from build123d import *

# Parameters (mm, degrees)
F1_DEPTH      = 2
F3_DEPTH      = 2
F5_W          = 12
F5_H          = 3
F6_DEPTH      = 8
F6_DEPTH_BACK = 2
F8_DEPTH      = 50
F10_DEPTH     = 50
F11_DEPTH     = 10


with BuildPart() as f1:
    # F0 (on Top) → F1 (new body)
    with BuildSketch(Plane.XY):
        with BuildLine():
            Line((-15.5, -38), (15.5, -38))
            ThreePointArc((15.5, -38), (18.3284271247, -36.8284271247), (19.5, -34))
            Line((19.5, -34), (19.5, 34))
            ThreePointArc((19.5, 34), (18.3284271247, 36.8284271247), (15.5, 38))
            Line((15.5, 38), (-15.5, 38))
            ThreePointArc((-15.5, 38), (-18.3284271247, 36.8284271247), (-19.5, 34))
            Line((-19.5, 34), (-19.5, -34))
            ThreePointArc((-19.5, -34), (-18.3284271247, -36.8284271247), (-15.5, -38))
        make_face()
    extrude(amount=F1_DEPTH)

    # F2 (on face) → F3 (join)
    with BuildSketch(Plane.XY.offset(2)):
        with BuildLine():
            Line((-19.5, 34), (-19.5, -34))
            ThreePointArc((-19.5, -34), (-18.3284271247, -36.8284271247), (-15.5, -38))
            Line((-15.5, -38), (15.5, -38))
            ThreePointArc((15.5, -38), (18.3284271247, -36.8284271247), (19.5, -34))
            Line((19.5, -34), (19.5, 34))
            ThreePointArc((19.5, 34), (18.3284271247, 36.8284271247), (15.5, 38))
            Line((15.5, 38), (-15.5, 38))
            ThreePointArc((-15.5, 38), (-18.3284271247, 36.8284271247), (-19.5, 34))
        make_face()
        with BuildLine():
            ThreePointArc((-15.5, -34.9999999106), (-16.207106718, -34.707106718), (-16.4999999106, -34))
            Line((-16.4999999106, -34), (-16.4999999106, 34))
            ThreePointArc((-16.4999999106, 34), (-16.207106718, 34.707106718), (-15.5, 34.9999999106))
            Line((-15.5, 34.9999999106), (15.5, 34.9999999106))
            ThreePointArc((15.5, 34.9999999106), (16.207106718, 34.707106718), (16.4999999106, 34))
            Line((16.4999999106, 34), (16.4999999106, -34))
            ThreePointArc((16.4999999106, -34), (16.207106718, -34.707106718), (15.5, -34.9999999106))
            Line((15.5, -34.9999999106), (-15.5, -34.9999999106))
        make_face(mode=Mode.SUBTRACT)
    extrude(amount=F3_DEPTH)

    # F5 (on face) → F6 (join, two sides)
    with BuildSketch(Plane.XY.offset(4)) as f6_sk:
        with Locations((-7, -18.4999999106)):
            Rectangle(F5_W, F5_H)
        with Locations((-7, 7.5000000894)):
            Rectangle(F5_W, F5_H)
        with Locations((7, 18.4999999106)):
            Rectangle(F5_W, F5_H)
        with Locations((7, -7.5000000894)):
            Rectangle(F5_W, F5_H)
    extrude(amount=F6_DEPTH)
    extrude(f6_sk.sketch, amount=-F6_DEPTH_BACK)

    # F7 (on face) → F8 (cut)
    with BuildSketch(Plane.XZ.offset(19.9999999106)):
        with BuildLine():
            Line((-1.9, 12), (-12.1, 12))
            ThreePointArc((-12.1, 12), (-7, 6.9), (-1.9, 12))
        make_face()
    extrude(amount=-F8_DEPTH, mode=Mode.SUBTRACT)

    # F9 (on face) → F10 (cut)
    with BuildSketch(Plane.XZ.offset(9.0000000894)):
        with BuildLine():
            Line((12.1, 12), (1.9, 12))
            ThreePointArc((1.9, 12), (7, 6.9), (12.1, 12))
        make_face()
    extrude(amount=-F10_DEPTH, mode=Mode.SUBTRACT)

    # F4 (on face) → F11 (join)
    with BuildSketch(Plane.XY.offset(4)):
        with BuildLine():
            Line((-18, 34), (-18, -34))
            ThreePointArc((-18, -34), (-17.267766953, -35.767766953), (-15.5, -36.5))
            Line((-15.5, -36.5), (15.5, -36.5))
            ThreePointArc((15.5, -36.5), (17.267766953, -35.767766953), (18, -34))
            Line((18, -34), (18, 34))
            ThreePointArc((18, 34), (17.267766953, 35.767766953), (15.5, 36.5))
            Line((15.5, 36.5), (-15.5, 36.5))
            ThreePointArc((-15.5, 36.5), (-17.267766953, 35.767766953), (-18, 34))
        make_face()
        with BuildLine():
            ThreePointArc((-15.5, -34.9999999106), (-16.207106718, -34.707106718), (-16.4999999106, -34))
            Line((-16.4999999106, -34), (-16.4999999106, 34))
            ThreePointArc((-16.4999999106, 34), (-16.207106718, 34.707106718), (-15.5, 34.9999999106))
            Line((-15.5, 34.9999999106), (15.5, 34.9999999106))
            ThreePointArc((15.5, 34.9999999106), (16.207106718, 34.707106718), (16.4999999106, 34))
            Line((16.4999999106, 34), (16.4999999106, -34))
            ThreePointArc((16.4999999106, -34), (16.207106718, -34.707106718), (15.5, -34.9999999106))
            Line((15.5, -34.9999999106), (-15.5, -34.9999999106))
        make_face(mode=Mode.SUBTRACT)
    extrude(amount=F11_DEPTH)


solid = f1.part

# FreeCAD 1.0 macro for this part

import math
import FreeCAD as App
import Part
import Sketcher
from FreeCAD import Vector
Q = App.Units.Quantity

doc = App.newDocument("Part")
body = doc.addObject("PartDesign::Body", "Body")

# Sketch on XY plane
sketch1 = body.newObject("Sketcher::SketchObject", "Sketch")
sketch1.AttachmentSupport = (doc.getObject("XY_Plane"), [""])
sketch1.MapMode = "FlatFace"
sketch1.addGeometry([
    Part.LineSegment(Vector(-15.5, -38, 0), Vector(15.5, -38, 0)),  # 0
    Part.ArcOfCircle(Part.Circle(Vector(15.5, -34, 0), Vector(0, 0, 1), 4), math.radians(-90), math.radians(0)),  # 1
    Part.LineSegment(Vector(19.5, -34, 0), Vector(19.5, 34, 0)),  # 2
    Part.ArcOfCircle(Part.Circle(Vector(15.5, 34, 0), Vector(0, 0, 1), 4), math.radians(0), math.radians(90)),  # 3
    Part.LineSegment(Vector(15.5, 38, 0), Vector(-15.5, 38, 0)),  # 4
    Part.ArcOfCircle(Part.Circle(Vector(-15.5, 34, 0), Vector(0, 0, 1), 4), math.radians(90), math.radians(180)),  # 5
    Part.LineSegment(Vector(-19.5, 34, 0), Vector(-19.5, -34, 0)),  # 6
    Part.ArcOfCircle(Part.Circle(Vector(-15.5, -34, 0), Vector(0, 0, 1), 4), math.radians(180), math.radians(270)),  # 7
], False)
sketch1.addConstraint([
    Sketcher.Constraint("Tangent", 0, 2, 1, 1),
    Sketcher.Constraint("Tangent", 1, 2, 2, 1),
    Sketcher.Constraint("Tangent", 2, 2, 3, 1),
    Sketcher.Constraint("Tangent", 3, 2, 4, 1),
    Sketcher.Constraint("Tangent", 4, 2, 5, 1),
    Sketcher.Constraint("Tangent", 5, 2, 6, 1),
    Sketcher.Constraint("Tangent", 6, 2, 7, 1),
    Sketcher.Constraint("Tangent", 7, 2, 0, 1),
    Sketcher.Constraint("Horizontal", 0),
    Sketcher.Constraint("Vertical", 2),
    Sketcher.Constraint("Horizontal", 4),
    Sketcher.Constraint("Vertical", 6),
    Sketcher.Constraint("Equal", 1, 3),
    Sketcher.Constraint("Equal", 3, 5),
    Sketcher.Constraint("Equal", 5, 7),
    Sketcher.Constraint("Symmetric", 1, 3, 5, 3, -1, 1),
    Sketcher.Constraint("Radius", 1, Q("4 mm")),
    Sketcher.Constraint("DistanceX", 0, 1, 0, 2, Q("31 mm")),
    Sketcher.Constraint("DistanceY", 2, 1, 2, 2, Q("68 mm")),
])
pad1 = body.newObject("PartDesign::Pad", "Pad")
pad1.Profile = sketch1
pad1.Length = 2

# Sketch on XY plane
sketch2 = body.newObject("Sketcher::SketchObject", "Sketch001")
sketch2.AttachmentSupport = (doc.getObject("XY_Plane"), [""])
sketch2.MapMode = "FlatFace"
sketch2.AttachmentOffset = App.Placement(Vector(0, 0, 2), App.Rotation())
sketch2.addGeometry([
    Part.LineSegment(Vector(-19.5, 34, 0), Vector(-19.5, -34, 0)),  # 0
    Part.ArcOfCircle(Part.Circle(Vector(-15.5, -34, 0), Vector(0, 0, 1), 4), math.radians(180), math.radians(270)),  # 1
    Part.LineSegment(Vector(-15.5, -38, 0), Vector(15.5, -38, 0)),  # 2
    Part.ArcOfCircle(Part.Circle(Vector(15.5, -34, 0), Vector(0, 0, 1), 4), math.radians(-90), math.radians(0)),  # 3
    Part.LineSegment(Vector(19.5, -34, 0), Vector(19.5, 34, 0)),  # 4
    Part.ArcOfCircle(Part.Circle(Vector(15.5, 34, 0), Vector(0, 0, 1), 4), math.radians(0), math.radians(90)),  # 5
    Part.LineSegment(Vector(15.5, 38, 0), Vector(-15.5, 38, 0)),  # 6
    Part.ArcOfCircle(Part.Circle(Vector(-15.5, 34, 0), Vector(0, 0, 1), 4), math.radians(90), math.radians(180)),  # 7
    Part.LineSegment(Vector(15.5, -35, 0), Vector(-15.5, -35, 0)),  # 8
    Part.ArcOfCircle(Part.Circle(Vector(-15.5, -34, 0), Vector(0, 0, 1), 1), math.radians(180), math.radians(270)),  # 9
    Part.LineSegment(Vector(-16.5, -34, 0), Vector(-16.5, 34, 0)),  # 10
    Part.ArcOfCircle(Part.Circle(Vector(-15.5, 34, 0), Vector(0, 0, 1), 1), math.radians(90), math.radians(180)),  # 11
    Part.LineSegment(Vector(-15.5, 35, 0), Vector(15.5, 35, 0)),  # 12
    Part.ArcOfCircle(Part.Circle(Vector(15.5, 34, 0), Vector(0, 0, 1), 1), math.radians(0), math.radians(90)),  # 13
    Part.LineSegment(Vector(16.5, 34, 0), Vector(16.5, -34, 0)),  # 14
    Part.ArcOfCircle(Part.Circle(Vector(15.5, -34, 0), Vector(0, 0, 1), 1), math.radians(-90), math.radians(0)),  # 15
], False)
sketch2.addConstraint([
    Sketcher.Constraint("Tangent", 0, 2, 1, 1),
    Sketcher.Constraint("Tangent", 1, 2, 2, 1),
    Sketcher.Constraint("Tangent", 2, 2, 3, 1),
    Sketcher.Constraint("Tangent", 3, 2, 4, 1),
    Sketcher.Constraint("Tangent", 4, 2, 5, 1),
    Sketcher.Constraint("Tangent", 5, 2, 6, 1),
    Sketcher.Constraint("Tangent", 6, 2, 7, 1),
    Sketcher.Constraint("Tangent", 7, 2, 0, 1),
    Sketcher.Constraint("Tangent", 8, 2, 9, 2),
    Sketcher.Constraint("Tangent", 9, 1, 10, 1),
    Sketcher.Constraint("Tangent", 10, 2, 11, 2),
    Sketcher.Constraint("Tangent", 11, 1, 12, 1),
    Sketcher.Constraint("Tangent", 12, 2, 13, 2),
    Sketcher.Constraint("Tangent", 13, 1, 14, 1),
    Sketcher.Constraint("Tangent", 14, 2, 15, 2),
    Sketcher.Constraint("Tangent", 15, 1, 8, 1),
    Sketcher.Constraint("Vertical", 0),
    Sketcher.Constraint("Horizontal", 2),
    Sketcher.Constraint("Vertical", 4),
    Sketcher.Constraint("Horizontal", 6),
    Sketcher.Constraint("Horizontal", 8),
    Sketcher.Constraint("Vertical", 10),
    Sketcher.Constraint("Horizontal", 12),
    Sketcher.Constraint("Vertical", 14),
    Sketcher.Constraint("Coincident", 9, 3, 1, 3),
    Sketcher.Constraint("Coincident", 11, 3, 7, 3),
    Sketcher.Constraint("Coincident", 13, 3, 5, 3),
    Sketcher.Constraint("Equal", 1, 3),
    Sketcher.Constraint("Equal", 3, 5),
    Sketcher.Constraint("Equal", 5, 7),
    Sketcher.Constraint("Equal", 13, 15),
    Sketcher.Constraint("Symmetric", 1, 3, 5, 3, -1, 1),
    Sketcher.Constraint("Radius", 1, Q("4 mm")),
    Sketcher.Constraint("Radius", 9, Q("1 mm")),
    Sketcher.Constraint("DistanceX", 2, 1, 2, 2, Q("31 mm")),
    Sketcher.Constraint("DistanceY", 0, 2, 0, 1, Q("68 mm")),
])
pad2 = body.newObject("PartDesign::Pad", "Pad001")
pad2.Profile = sketch2
pad2.Length = 2

# Sketch on XY plane
sketch3 = body.newObject("Sketcher::SketchObject", "Sketch002")
sketch3.AttachmentSupport = (doc.getObject("XY_Plane"), [""])
sketch3.MapMode = "FlatFace"
sketch3.AttachmentOffset = App.Placement(Vector(0, 0, 4), App.Rotation())
sketch3.addGeometry([
    Part.LineSegment(Vector(-13, -17, 0), Vector(-13, -20, 0)),  # 0
    Part.LineSegment(Vector(-13, -20, 0), Vector(-1, -20, 0)),  # 1
    Part.LineSegment(Vector(-1, -20, 0), Vector(-1, -17, 0)),  # 2
    Part.LineSegment(Vector(-1, -17, 0), Vector(-13, -17, 0)),  # 3
    Part.LineSegment(Vector(-13, 9, 0), Vector(-13, 6, 0)),  # 4
    Part.LineSegment(Vector(-13, 6, 0), Vector(-1, 6, 0)),  # 5
    Part.LineSegment(Vector(-1, 6, 0), Vector(-1, 9, 0)),  # 6
    Part.LineSegment(Vector(-1, 9, 0), Vector(-13, 9, 0)),  # 7
    Part.LineSegment(Vector(1, 20, 0), Vector(1, 17, 0)),  # 8
    Part.LineSegment(Vector(1, 17, 0), Vector(13, 17, 0)),  # 9
    Part.LineSegment(Vector(13, 17, 0), Vector(13, 20, 0)),  # 10
    Part.LineSegment(Vector(13, 20, 0), Vector(1, 20, 0)),  # 11
    Part.LineSegment(Vector(1, -6, 0), Vector(1, -9, 0)),  # 12
    Part.LineSegment(Vector(1, -9, 0), Vector(13, -9, 0)),  # 13
    Part.LineSegment(Vector(13, -9, 0), Vector(13, -6, 0)),  # 14
    Part.LineSegment(Vector(13, -6, 0), Vector(1, -6, 0)),  # 15
], False)
sketch3.addConstraint([
    Sketcher.Constraint("Coincident", 0, 2, 1, 1),
    Sketcher.Constraint("Coincident", 1, 2, 2, 1),
    Sketcher.Constraint("Coincident", 2, 2, 3, 1),
    Sketcher.Constraint("Coincident", 3, 2, 0, 1),
    Sketcher.Constraint("Coincident", 4, 2, 5, 1),
    Sketcher.Constraint("Coincident", 5, 2, 6, 1),
    Sketcher.Constraint("Coincident", 6, 2, 7, 1),
    Sketcher.Constraint("Coincident", 7, 2, 4, 1),
    Sketcher.Constraint("Coincident", 8, 2, 9, 1),
    Sketcher.Constraint("Coincident", 9, 2, 10, 1),
    Sketcher.Constraint("Coincident", 10, 2, 11, 1),
    Sketcher.Constraint("Coincident", 11, 2, 8, 1),
    Sketcher.Constraint("Coincident", 12, 2, 13, 1),
    Sketcher.Constraint("Coincident", 13, 2, 14, 1),
    Sketcher.Constraint("Coincident", 14, 2, 15, 1),
    Sketcher.Constraint("Coincident", 15, 2, 12, 1),
    Sketcher.Constraint("Vertical", 0),
    Sketcher.Constraint("Horizontal", 1),
    Sketcher.Constraint("Vertical", 2),
    Sketcher.Constraint("Horizontal", 3),
    Sketcher.Constraint("Vertical", 4),
    Sketcher.Constraint("Horizontal", 5),
    Sketcher.Constraint("Vertical", 6),
    Sketcher.Constraint("Horizontal", 7),
    Sketcher.Constraint("Vertical", 8),
    Sketcher.Constraint("Horizontal", 9),
    Sketcher.Constraint("Vertical", 10),
    Sketcher.Constraint("Horizontal", 11),
    Sketcher.Constraint("Vertical", 12),
    Sketcher.Constraint("Horizontal", 13),
    Sketcher.Constraint("Vertical", 14),
    Sketcher.Constraint("Horizontal", 15),
    Sketcher.Constraint("Symmetric", 2, 2, 8, 2, -1, 1),
    Sketcher.Constraint("Symmetric", 0, 2, 10, 2, -1, 1),
    Sketcher.Constraint("Symmetric", 6, 2, 12, 2, -1, 1),
    Sketcher.Constraint("Symmetric", 4, 2, 14, 2, -1, 1),
    Sketcher.Constraint("Vertical", 3, 2, 4, 2),
    Sketcher.Constraint("Vertical", 2, 2, 5, 2),
    Sketcher.Constraint("Equal", 2, 4),
    Sketcher.Constraint("DistanceX", 1, 1, 1, 2, Q("12 mm")),
    Sketcher.Constraint("DistanceY", 0, 2, 0, 1, Q("3 mm")),
    Sketcher.Constraint("DistanceX", 0, 2, -1, 1, Q("13 mm")),
    Sketcher.Constraint("DistanceY", 0, 2, -1, 1, Q("20 mm")),
    Sketcher.Constraint("DistanceY", -1, 1, 4, 2, Q("6 mm")),
])
pad3 = body.newObject("PartDesign::Pad", "Pad002")
pad3.Profile = sketch3
pad3.Type = "TwoLengths"
pad3.Length = 8
pad3.Length2 = 2

# Sketch on XZ plane
sketch4 = body.newObject("Sketcher::SketchObject", "Sketch003")
sketch4.AttachmentSupport = (doc.getObject("XZ_Plane"), [""])
sketch4.MapMode = "FlatFace"
sketch4.AttachmentOffset = App.Placement(Vector(0, 0, 20), App.Rotation())
sketch4.addGeometry([
    Part.LineSegment(Vector(-1.9, 12, 0), Vector(-12.1, 12, 0)),
    Part.ArcOfCircle(Part.Circle(Vector(-7, 12, 0), Vector(0, 0, 1), 5.1), math.radians(180), math.radians(360)),
], False)
sketch4.addConstraint([
    Sketcher.Constraint("Coincident", 0, 1, 1, 2),
    Sketcher.Constraint("Coincident", 1, 1, 0, 2),
    Sketcher.Constraint("Horizontal", 0),
    Sketcher.Constraint("Horizontal", 1, 3, 0, 1),
    Sketcher.Constraint("Radius", 1, Q("5.1 mm")),
    Sketcher.Constraint("DistanceX", 1, 3, -1, 1, Q("7 mm")),
    Sketcher.Constraint("DistanceY", -1, 1, 1, 3, Q("12 mm")),
])
pocket1 = body.newObject("PartDesign::Pocket", "Pocket")
pocket1.Profile = sketch4
pocket1.Length = 50

# Sketch on XZ plane
sketch5 = body.newObject("Sketcher::SketchObject", "Sketch004")
sketch5.AttachmentSupport = (doc.getObject("XZ_Plane"), [""])
sketch5.MapMode = "FlatFace"
sketch5.AttachmentOffset = App.Placement(Vector(0, 0, 9), App.Rotation())
sketch5.addGeometry([
    Part.LineSegment(Vector(12.1, 12, 0), Vector(1.9, 12, 0)),
    Part.ArcOfCircle(Part.Circle(Vector(7, 12, 0), Vector(0, 0, 1), 5.1), math.radians(180), math.radians(360)),
], False)
sketch5.addConstraint([
    Sketcher.Constraint("Coincident", 0, 1, 1, 2),
    Sketcher.Constraint("Coincident", 1, 1, 0, 2),
    Sketcher.Constraint("Horizontal", 0),
    Sketcher.Constraint("Horizontal", 1, 3, 0, 1),
    Sketcher.Constraint("Radius", 1, Q("5.1 mm")),
    Sketcher.Constraint("DistanceX", -1, 1, 1, 3, Q("7 mm")),
    Sketcher.Constraint("DistanceY", -1, 1, 1, 3, Q("12 mm")),
])
pocket2 = body.newObject("PartDesign::Pocket", "Pocket001")
pocket2.Profile = sketch5
pocket2.Length = 50

# Sketch on XY plane
sketch6 = body.newObject("Sketcher::SketchObject", "Sketch005")
sketch6.AttachmentSupport = (doc.getObject("XY_Plane"), [""])
sketch6.MapMode = "FlatFace"
sketch6.AttachmentOffset = App.Placement(Vector(0, 0, 4), App.Rotation())
sketch6.addGeometry([
    Part.LineSegment(Vector(-18, 34, 0), Vector(-18, -34, 0)),  # 0
    Part.ArcOfCircle(Part.Circle(Vector(-15.5, -34, 0), Vector(0, 0, 1), 2.5), math.radians(180), math.radians(270)),  # 1
    Part.LineSegment(Vector(-15.5, -36.5, 0), Vector(15.5, -36.5, 0)),  # 2
    Part.ArcOfCircle(Part.Circle(Vector(15.5, -34, 0), Vector(0, 0, 1), 2.5), math.radians(-90), math.radians(0)),  # 3
    Part.LineSegment(Vector(18, -34, 0), Vector(18, 34, 0)),  # 4
    Part.ArcOfCircle(Part.Circle(Vector(15.5, 34, 0), Vector(0, 0, 1), 2.5), math.radians(0), math.radians(90)),  # 5
    Part.LineSegment(Vector(15.5, 36.5, 0), Vector(-15.5, 36.5, 0)),  # 6
    Part.ArcOfCircle(Part.Circle(Vector(-15.5, 34, 0), Vector(0, 0, 1), 2.5), math.radians(90), math.radians(180)),  # 7
    Part.LineSegment(Vector(15.5, -35, 0), Vector(-15.5, -35, 0)),  # 8
    Part.ArcOfCircle(Part.Circle(Vector(-15.5, -34, 0), Vector(0, 0, 1), 1), math.radians(180), math.radians(270)),  # 9
    Part.LineSegment(Vector(-16.5, -34, 0), Vector(-16.5, 34, 0)),  # 10
    Part.ArcOfCircle(Part.Circle(Vector(-15.5, 34, 0), Vector(0, 0, 1), 1), math.radians(90), math.radians(180)),  # 11
    Part.LineSegment(Vector(-15.5, 35, 0), Vector(15.5, 35, 0)),  # 12
    Part.ArcOfCircle(Part.Circle(Vector(15.5, 34, 0), Vector(0, 0, 1), 1), math.radians(0), math.radians(90)),  # 13
    Part.LineSegment(Vector(16.5, 34, 0), Vector(16.5, -34, 0)),  # 14
    Part.ArcOfCircle(Part.Circle(Vector(15.5, -34, 0), Vector(0, 0, 1), 1), math.radians(-90), math.radians(0)),  # 15
], False)
sketch6.addConstraint([
    Sketcher.Constraint("Tangent", 0, 2, 1, 1),
    Sketcher.Constraint("Tangent", 1, 2, 2, 1),
    Sketcher.Constraint("Tangent", 2, 2, 3, 1),
    Sketcher.Constraint("Tangent", 3, 2, 4, 1),
    Sketcher.Constraint("Tangent", 4, 2, 5, 1),
    Sketcher.Constraint("Tangent", 5, 2, 6, 1),
    Sketcher.Constraint("Tangent", 6, 2, 7, 1),
    Sketcher.Constraint("Tangent", 7, 2, 0, 1),
    Sketcher.Constraint("Tangent", 8, 2, 9, 2),
    Sketcher.Constraint("Tangent", 9, 1, 10, 1),
    Sketcher.Constraint("Tangent", 10, 2, 11, 2),
    Sketcher.Constraint("Tangent", 11, 1, 12, 1),
    Sketcher.Constraint("Tangent", 12, 2, 13, 2),
    Sketcher.Constraint("Tangent", 13, 1, 14, 1),
    Sketcher.Constraint("Tangent", 14, 2, 15, 2),
    Sketcher.Constraint("Tangent", 15, 1, 8, 1),
    Sketcher.Constraint("Vertical", 0),
    Sketcher.Constraint("Horizontal", 2),
    Sketcher.Constraint("Vertical", 4),
    Sketcher.Constraint("Horizontal", 6),
    Sketcher.Constraint("Horizontal", 8),
    Sketcher.Constraint("Vertical", 10),
    Sketcher.Constraint("Horizontal", 12),
    Sketcher.Constraint("Vertical", 14),
    Sketcher.Constraint("Coincident", 9, 3, 1, 3),
    Sketcher.Constraint("Coincident", 11, 3, 7, 3),
    Sketcher.Constraint("Coincident", 13, 3, 5, 3),
    Sketcher.Constraint("Equal", 1, 3),
    Sketcher.Constraint("Equal", 3, 5),
    Sketcher.Constraint("Equal", 5, 7),
    Sketcher.Constraint("Equal", 13, 15),
    Sketcher.Constraint("Symmetric", 1, 3, 5, 3, -1, 1),
    Sketcher.Constraint("Radius", 9, Q("1 mm")),
    Sketcher.Constraint("Radius", 1, Q("2.5 mm")),
    Sketcher.Constraint("DistanceX", 2, 1, 2, 2, Q("31 mm")),
    Sketcher.Constraint("DistanceY", 0, 2, 0, 1, Q("68 mm")),
])
pad4 = body.newObject("PartDesign::Pad", "Pad003")
pad4.Profile = sketch6
pad4.Length = 10

doc.recompute()
